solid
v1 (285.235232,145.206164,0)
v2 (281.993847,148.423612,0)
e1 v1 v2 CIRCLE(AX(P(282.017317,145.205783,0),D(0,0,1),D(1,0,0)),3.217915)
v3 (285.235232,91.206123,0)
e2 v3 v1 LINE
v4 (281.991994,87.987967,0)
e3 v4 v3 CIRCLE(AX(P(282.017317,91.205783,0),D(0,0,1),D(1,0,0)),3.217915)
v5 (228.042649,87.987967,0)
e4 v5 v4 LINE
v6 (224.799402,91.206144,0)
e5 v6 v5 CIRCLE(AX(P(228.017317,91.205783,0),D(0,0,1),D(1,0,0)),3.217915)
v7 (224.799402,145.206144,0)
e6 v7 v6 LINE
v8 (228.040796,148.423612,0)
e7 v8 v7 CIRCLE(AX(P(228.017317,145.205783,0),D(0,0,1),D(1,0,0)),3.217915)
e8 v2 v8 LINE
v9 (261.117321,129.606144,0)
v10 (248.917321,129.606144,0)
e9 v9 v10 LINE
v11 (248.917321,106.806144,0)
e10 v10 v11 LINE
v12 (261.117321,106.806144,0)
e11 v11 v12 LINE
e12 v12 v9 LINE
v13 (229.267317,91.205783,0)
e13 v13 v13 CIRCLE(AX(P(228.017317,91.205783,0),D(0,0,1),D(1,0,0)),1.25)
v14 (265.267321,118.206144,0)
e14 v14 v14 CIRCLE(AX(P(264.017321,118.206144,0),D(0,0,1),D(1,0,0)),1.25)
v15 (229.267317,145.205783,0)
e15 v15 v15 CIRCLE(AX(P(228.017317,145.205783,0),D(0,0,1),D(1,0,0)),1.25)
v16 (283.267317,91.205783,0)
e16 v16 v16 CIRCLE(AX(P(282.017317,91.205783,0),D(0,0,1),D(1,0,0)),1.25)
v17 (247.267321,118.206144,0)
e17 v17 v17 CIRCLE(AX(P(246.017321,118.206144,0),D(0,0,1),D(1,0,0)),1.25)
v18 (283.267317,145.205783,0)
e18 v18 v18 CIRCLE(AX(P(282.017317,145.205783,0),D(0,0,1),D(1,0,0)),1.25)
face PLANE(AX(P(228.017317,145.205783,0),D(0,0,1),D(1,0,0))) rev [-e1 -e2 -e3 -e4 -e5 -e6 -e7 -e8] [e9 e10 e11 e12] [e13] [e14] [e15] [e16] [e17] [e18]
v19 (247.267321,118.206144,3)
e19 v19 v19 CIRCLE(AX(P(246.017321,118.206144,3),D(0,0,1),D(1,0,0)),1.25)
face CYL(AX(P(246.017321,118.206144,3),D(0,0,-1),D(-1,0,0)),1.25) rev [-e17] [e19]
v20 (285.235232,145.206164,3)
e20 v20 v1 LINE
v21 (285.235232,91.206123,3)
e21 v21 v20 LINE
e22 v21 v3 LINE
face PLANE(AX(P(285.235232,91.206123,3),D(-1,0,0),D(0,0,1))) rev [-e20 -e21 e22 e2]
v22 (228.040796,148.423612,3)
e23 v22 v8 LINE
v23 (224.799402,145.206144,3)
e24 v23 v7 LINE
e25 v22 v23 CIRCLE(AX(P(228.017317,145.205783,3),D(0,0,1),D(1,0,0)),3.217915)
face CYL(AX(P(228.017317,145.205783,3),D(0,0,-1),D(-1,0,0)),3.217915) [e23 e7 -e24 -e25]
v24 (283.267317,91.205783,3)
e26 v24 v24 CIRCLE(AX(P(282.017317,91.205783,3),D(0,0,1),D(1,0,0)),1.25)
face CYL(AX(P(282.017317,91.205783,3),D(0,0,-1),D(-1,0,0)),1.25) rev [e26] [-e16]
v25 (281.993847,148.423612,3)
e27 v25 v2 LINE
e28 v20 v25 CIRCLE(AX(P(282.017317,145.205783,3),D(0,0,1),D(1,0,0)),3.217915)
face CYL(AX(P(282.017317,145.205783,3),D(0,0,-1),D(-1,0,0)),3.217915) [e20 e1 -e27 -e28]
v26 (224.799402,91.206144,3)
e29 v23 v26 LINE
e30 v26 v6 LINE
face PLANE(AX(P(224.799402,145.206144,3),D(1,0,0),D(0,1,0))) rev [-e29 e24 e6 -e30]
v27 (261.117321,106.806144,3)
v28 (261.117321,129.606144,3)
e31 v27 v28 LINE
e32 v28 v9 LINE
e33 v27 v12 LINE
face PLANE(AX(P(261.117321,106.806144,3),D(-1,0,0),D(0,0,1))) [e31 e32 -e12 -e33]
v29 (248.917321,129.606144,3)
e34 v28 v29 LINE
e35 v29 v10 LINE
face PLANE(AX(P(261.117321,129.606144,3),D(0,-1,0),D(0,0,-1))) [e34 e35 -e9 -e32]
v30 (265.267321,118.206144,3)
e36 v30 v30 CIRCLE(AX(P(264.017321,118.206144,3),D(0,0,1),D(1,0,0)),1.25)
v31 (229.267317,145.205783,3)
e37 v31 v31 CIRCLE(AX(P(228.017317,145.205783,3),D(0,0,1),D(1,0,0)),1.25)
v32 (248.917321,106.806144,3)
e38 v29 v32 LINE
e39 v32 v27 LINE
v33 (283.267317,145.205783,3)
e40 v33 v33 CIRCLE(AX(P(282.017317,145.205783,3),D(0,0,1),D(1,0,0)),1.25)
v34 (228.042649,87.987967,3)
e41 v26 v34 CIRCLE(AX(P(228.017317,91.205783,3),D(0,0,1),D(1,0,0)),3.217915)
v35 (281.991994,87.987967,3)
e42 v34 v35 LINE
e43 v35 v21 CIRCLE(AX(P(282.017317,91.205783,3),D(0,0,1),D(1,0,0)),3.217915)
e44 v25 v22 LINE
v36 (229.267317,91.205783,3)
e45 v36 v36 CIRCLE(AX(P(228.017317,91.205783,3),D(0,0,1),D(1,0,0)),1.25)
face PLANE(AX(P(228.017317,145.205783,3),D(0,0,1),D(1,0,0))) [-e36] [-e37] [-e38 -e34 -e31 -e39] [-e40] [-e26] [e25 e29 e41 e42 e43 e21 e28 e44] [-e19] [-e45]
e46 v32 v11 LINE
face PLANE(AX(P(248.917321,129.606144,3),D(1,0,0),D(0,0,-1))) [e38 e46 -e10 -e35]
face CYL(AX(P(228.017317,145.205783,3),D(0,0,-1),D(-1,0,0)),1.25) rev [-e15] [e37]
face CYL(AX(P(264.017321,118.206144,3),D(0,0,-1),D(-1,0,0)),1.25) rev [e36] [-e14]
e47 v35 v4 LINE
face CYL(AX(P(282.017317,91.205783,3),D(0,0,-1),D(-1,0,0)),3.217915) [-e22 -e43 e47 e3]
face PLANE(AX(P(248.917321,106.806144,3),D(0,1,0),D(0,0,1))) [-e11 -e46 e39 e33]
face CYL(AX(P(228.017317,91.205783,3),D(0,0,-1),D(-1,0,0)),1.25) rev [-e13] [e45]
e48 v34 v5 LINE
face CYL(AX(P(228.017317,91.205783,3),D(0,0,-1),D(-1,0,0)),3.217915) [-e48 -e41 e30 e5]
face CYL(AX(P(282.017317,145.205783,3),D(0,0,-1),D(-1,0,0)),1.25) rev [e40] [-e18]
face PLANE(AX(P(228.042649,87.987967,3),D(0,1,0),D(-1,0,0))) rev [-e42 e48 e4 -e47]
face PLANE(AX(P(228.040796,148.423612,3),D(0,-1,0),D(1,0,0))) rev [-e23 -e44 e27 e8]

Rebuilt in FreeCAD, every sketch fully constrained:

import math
import FreeCAD as App
import Part
import Sketcher

V = App.Vector
Q = App.Units.Quantity

doc = App.newDocument("Part")
body = doc.addObject("PartDesign::Body", "Body")

# Sketch on XY plane
sketch1 = doc.addObject("Sketcher::SketchObject", "Sketch")
body.addObject(sketch1)
sketch1.AttachmentSupport = (doc.XY_Plane, [""])
sketch1.MapMode = "FlatFace"
sketch1.addGeometry(Part.LineSegment(V(281.993847, 148.423612, 0), V(228.040796, 148.423612, 0)), False)
sketch1.addGeometry(Part.ArcOfCircle(Part.Circle(V(228.017317, 145.205783, 0), V(0, 0, 1), 3.217915), math.radians(89.581954), math.radians(179.993573)), False)
sketch1.addGeometry(Part.LineSegment(V(224.799402, 145.206144, 0), V(224.799402, 91.206144, 0)), False)
sketch1.addGeometry(Part.ArcOfCircle(Part.Circle(V(228.017317, 91.205783, 0), V(0, 0, 1), 3.217915), math.radians(179.993573), math.radians(270.451039)), False)
sketch1.addGeometry(Part.LineSegment(V(228.042649, 87.987967, 0), V(281.991994, 87.987967, 0)), False)
sketch1.addGeometry(Part.ArcOfCircle(Part.Circle(V(282.017317, 91.205783, 0), V(0, 0, 1), 3.217915), math.radians(-90.450895), math.radians(0.006057)), False)
sketch1.addGeometry(Part.LineSegment(V(285.235232, 91.206123, 0), V(285.235232, 145.206164, 0)), False)
sketch1.addGeometry(Part.ArcOfCircle(Part.Circle(V(282.017317, 145.205783, 0), V(0, 0, 1), 3.217915), math.radians(0.006798), math.radians(90.417902)), False)
sketch1.addGeometry(Part.Circle(V(282.017317, 91.205783, 0), V(0, 0, 1), 1.25), False)
sketch1.addGeometry(Part.Circle(V(228.017317, 91.205783, 0), V(0, 0, 1), 1.25), False)
sketch1.addGeometry(Part.Circle(V(264.017321, 118.206144, 0), V(0, 0, 1), 1.25), False)
sketch1.addGeometry(Part.LineSegment(V(248.917321, 106.806144, 0), V(248.917321, 129.606144, 0)), False)
sketch1.addGeometry(Part.LineSegment(V(248.917321, 129.606144, 0), V(261.117321, 129.606144, 0)), False)
sketch1.addGeometry(Part.LineSegment(V(261.117321, 129.606144, 0), V(261.117321, 106.806144, 0)), False)
sketch1.addGeometry(Part.LineSegment(V(261.117321, 106.806144, 0), V(248.917321, 106.806144, 0)), False)
sketch1.addGeometry(Part.Circle(V(282.017317, 145.205783, 0), V(0, 0, 1), 1.25), False)
sketch1.addGeometry(Part.Circle(V(246.017321, 118.206144, 0), V(0, 0, 1), 1.25), False)
sketch1.addGeometry(Part.Circle(V(228.017317, 145.205783, 0), V(0, 0, 1), 1.25), False)
sketch1.addConstraint(Sketcher.Constraint("Coincident", 0, 2, 1, 1))
sketch1.addConstraint(Sketcher.Constraint("Coincident", 1, 2, 2, 1))
sketch1.addConstraint(Sketcher.Constraint("Coincident", 2, 2, 3, 1))
sketch1.addConstraint(Sketcher.Constraint("Coincident", 3, 2, 4, 1))
sketch1.addConstraint(Sketcher.Constraint("Coincident", 4, 2, 5, 1))
sketch1.addConstraint(Sketcher.Constraint("Coincident", 5, 2, 6, 1))
sketch1.addConstraint(Sketcher.Constraint("Coincident", 6, 2, 7, 1))
sketch1.addConstraint(Sketcher.Constraint("Coincident", 7, 2, 0, 1))
sketch1.addConstraint(Sketcher.Constraint("Coincident", 11, 2, 12, 1))
sketch1.addConstraint(Sketcher.Constraint("Coincident", 12, 2, 13, 1))
sketch1.addConstraint(Sketcher.Constraint("Coincident", 13, 2, 14, 1))
sketch1.addConstraint(Sketcher.Constraint("Coincident", 14, 2, 11, 1))
sketch1.addConstraint(Sketcher.Constraint("Horizontal", 0))
sketch1.addConstraint(Sketcher.Constraint("Vertical", 2))
sketch1.addConstraint(Sketcher.Constraint("Horizontal", 4))
sketch1.addConstraint(Sketcher.Constraint("Vertical", 6))
sketch1.addConstraint(Sketcher.Constraint("Vertical", 11))
sketch1.addConstraint(Sketcher.Constraint("Horizontal", 12))
sketch1.addConstraint(Sketcher.Constraint("Vertical", 13))
sketch1.addConstraint(Sketcher.Constraint("Horizontal", 14))
sketch1.addConstraint(Sketcher.Constraint("Coincident", 8, 3, 5, 3))
sketch1.addConstraint(Sketcher.Constraint("Coincident", 9, 3, 3, 3))
sketch1.addConstraint(Sketcher.Constraint("Coincident", 15, 3, 7, 3))
sketch1.addConstraint(Sketcher.Constraint("Coincident", 17, 3, 1, 3))
sketch1.addConstraint(Sketcher.Constraint("Equal", 1, 3))
sketch1.addConstraint(Sketcher.Constraint("Equal", 3, 5))
sketch1.addConstraint(Sketcher.Constraint("Equal", 5, 7))
sketch1.addConstraint(Sketcher.Constraint("Equal", 8, 9))
sketch1.addConstraint(Sketcher.Constraint("Equal", 9, 10))
sketch1.addConstraint(Sketcher.Constraint("Equal", 10, 15))
sketch1.addConstraint(Sketcher.Constraint("Equal", 15, 16))
sketch1.addConstraint(Sketcher.Constraint("Equal", 16, 17))
sketch1.addConstraint(Sketcher.Constraint("Horizontal", 3, 3, 5, 3))
sketch1.addConstraint(Sketcher.Constraint("Horizontal", 1, 3, 7, 3))
sketch1.addConstraint(Sketcher.Constraint("Horizontal", 10, 3, 16, 3))
sketch1.addConstraint(Sketcher.Constraint("Diameter", 8, Q("2.5 mm")))
sketch1.addConstraint(Sketcher.Constraint("DistanceY", 2, 2, 2, 1, Q("54 mm")))
sketch1.addConstraint(Sketcher.Constraint("DistanceX", 12, 1, 12, 2, Q("12.2 mm")))
sketch1.addConstraint(Sketcher.Constraint("DistanceY", 11, 1, 11, 2, Q("22.8 mm")))
sketch1.addConstraint(Sketcher.Constraint("DistanceY", 3, 3, 1, 3, Q("54 mm")))
sketch1.addConstraint(Sketcher.Constraint("DistanceX", 3, 3, 5, 3, Q("54 mm")))
sketch1.addConstraint(Sketcher.Constraint("DistanceX", 16, 3, 10, 3, Q("18 mm")))
sketch1.addConstraint(Sketcher.Constraint("DistanceY", 16, 3, 1, 2, Q("27 mm")))
sketch1.addConstraint(Sketcher.Constraint("DistanceX", 16, 3, 11, 2, Q("2.9 mm")))
sketch1.addConstraint(Sketcher.Constraint("DistanceY", 16, 3, 11, 2, Q("11.4 mm")))
sketch1.addConstraint(Sketcher.Constraint("Radius", 1, Q("3.217915 mm")))
sketch1.addConstraint(Sketcher.Constraint("DistanceX", 0, 2, 0, 1, Q("53.953051 mm")))
sketch1.addConstraint(Sketcher.Constraint("DistanceY", 6, 1, 6, 2, Q("54.000042 mm")))
sketch1.addConstraint(Sketcher.Constraint("DistanceX", -1, 1, 1, 2, Q("224.799402 mm")))
sketch1.addConstraint(Sketcher.Constraint("DistanceX", 4, 1, 4, 2, Q("53.949345 mm")))
sketch1.addConstraint(Sketcher.Constraint("DistanceX", -1, 1, 10, 3, Q("264.017321 mm")))
sketch1.addConstraint(Sketcher.Constraint("DistanceY", 10, 3, 7, 3, Q("26.999639 mm")))
sketch1.addConstraint(Sketcher.Constraint("DistanceY", 5, 3, 5, 2, Q("0.00034 mm")))
sketch1.addConstraint(Sketcher.Constraint("DistanceY", -1, 1, 1, 3, Q("145.205783 mm")))
pad1 = doc.addObject("PartDesign::Pad", "Pad")
body.addObject(pad1)
pad1.Profile = sketch1
pad1.Length = 3

doc.recompute()
